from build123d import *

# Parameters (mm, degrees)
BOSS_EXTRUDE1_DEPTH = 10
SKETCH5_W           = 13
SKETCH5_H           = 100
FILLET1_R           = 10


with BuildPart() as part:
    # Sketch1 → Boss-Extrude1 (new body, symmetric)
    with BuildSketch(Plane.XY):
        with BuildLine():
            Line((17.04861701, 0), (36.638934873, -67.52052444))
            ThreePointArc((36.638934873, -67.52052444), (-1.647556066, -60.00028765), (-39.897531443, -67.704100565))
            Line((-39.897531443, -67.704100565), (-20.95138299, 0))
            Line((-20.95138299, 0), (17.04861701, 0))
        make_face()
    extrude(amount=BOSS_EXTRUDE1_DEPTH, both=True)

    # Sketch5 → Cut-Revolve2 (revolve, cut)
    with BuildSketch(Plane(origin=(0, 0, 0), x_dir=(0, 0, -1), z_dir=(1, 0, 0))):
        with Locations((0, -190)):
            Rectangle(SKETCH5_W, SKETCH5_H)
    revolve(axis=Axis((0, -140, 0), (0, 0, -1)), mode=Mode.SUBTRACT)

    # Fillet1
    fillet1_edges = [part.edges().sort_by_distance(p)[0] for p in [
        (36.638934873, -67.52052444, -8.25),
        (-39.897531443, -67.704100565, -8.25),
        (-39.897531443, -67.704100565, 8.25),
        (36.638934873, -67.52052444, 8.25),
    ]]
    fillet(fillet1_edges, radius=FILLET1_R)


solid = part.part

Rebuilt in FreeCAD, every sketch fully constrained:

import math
import FreeCAD as App
import Part
import Sketcher

V = App.Vector


def edges_at(feature, points):
    """Names of the edges that pass closest to the given points."""
    edges = feature.Shape.Edges
    near = lambda p: min(range(len(edges)), key=lambda i: edges[i].distToShape(Part.Vertex(*p))[0])
    return sorted({f"Edge{near(p) + 1}" for p in points})

doc = App.newDocument("Part")
body = doc.addObject("PartDesign::Body", "Body")

sketch1 = doc.addObject("Sketcher::SketchObject", "Sketch")
body.addObject(sketch1)
sketch1.AttachmentSupport = (doc.XY_Plane, [""])
sketch1.MapMode = "FlatFace"
sketch1.addGeometry(Part.LineSegment(V(37, -68, 0), V(17, 0, 0)), False)
sketch1.addGeometry(Part.LineSegment(V(17, 0, 0), V(-21, 0, 0)), False)
sketch1.addGeometry(Part.LineSegment(V(-21, 0, 0), V(-40, -68, 0)), False)
sketch1.addGeometry(Part.ArcOfCircle(Part.Circle(V(-1, -160, 0), V(0, 0, 1), 100), math.radians(68), math.radians(113)), False)
sketch1.addConstraint(Sketcher.Constraint("Coincident", 0, 2, 1, 1))
sketch1.addConstraint(Sketcher.Constraint("Coincident", 1, 2, 2, 1))
sketch1.addConstraint(Sketcher.Constraint("Coincident", 2, 2, 3, 2))
sketch1.addConstraint(Sketcher.Constraint("Coincident", 3, 1, 0, 1))
sketch1.addConstraint(Sketcher.Constraint("Horizontal", 1))
sketch1.addConstraint(Sketcher.Constraint("PointOnObject", 0, 2, -1))
sketch1.addConstraint(Sketcher.Constraint("Equal", 0, 2))
sketch1.addConstraint(Sketcher.Constraint("Radius", 3, 100.0))
sketch1.addConstraint(Sketcher.Constraint("DistanceX", 1, 2, 1, 1, 38.0))
sketch1.addConstraint(Sketcher.Constraint("DistanceY", 3, 3, -1, 1, 160.0))
sketch1.addConstraint(Sketcher.Constraint("DistanceY", 2, 2, -1, 1, 67.704101))
sketch1.addConstraint(Sketcher.Constraint("DistanceX", 2, 2, -1, 1, 39.897531))
sketch1.addConstraint(Sketcher.Constraint("DistanceX", 3, 3, 0, 2, 18.456319))
pad1 = doc.addObject("PartDesign::Pad", "Pad")
body.addObject(pad1)
pad1.Profile = sketch1
pad1.Length = 20
pad1.Midplane = True

sketch2 = doc.addObject("Sketcher::SketchObject", "Sketch001")
body.addObject(sketch2)
sketch2.AttachmentSupport = (doc.YZ_Plane, [""])
sketch2.MapMode = "FlatFace"
sketch2.addGeometry(Part.LineSegment(V(-140, 6, 0), V(-240, 6, 0)), False)
sketch2.addGeometry(Part.LineSegment(V(-240, 6, 0), V(-240, -6, 0)), False)
sketch2.addGeometry(Part.LineSegment(V(-240, -6, 0), V(-140, -6, 0)), False)
sketch2.addGeometry(Part.LineSegment(V(-140, -6, 0), V(-140, 6, 0)), False)
sketch2.addGeometry(Part.LineSegment(V(-140, 6, 0), V(-140, -6, 0)), True)
sketch2.addConstraint(Sketcher.Constraint("Coincident", 0, 2, 1, 1))
sketch2.addConstraint(Sketcher.Constraint("Coincident", 1, 2, 2, 1))
sketch2.addConstraint(Sketcher.Constraint("Coincident", 2, 2, 3, 1))
sketch2.addConstraint(Sketcher.Constraint("Coincident", 3, 2, 0, 1))
sketch2.addConstraint(Sketcher.Constraint("Horizontal", 0))
sketch2.addConstraint(Sketcher.Constraint("Vertical", 1))
sketch2.addConstraint(Sketcher.Constraint("Horizontal", 2))
sketch2.addConstraint(Sketcher.Constraint("Vertical", 3))
sketch2.addConstraint(Sketcher.Constraint("Vertical", 4))
sketch2.addConstraint(Sketcher.Constraint("Coincident", 4, 1, 3, 2))
sketch2.addConstraint(Sketcher.Constraint("Horizontal", 1, 2, 4, 2))
sketch2.addConstraint(Sketcher.Constraint("DistanceX", 0, 2, 0, 1, 100.0))
sketch2.addConstraint(Sketcher.Constraint("DistanceY", 1, 2, 1, 1, 13.0))
sketch2.addConstraint(Sketcher.Constraint("DistanceX", 0, 2, -1, 1, 240.0))
sketch2.addConstraint(Sketcher.Constraint("DistanceY", -1, 1, 0, 2, 6.5))
groove = doc.addObject("PartDesign::Groove", "Groove")
body.addObject(groove)
groove.Profile = sketch2
groove.ReferenceAxis = (sketch2, ["Axis0"])
groove.Angle = 360
doc.recompute()

fillet = doc.addObject("PartDesign::Fillet", "Fillet")
body.addObject(fillet)
fillet.Base = (groove, edges_at(groove, [
    (36.639, -67.521, -8.25),
    (-39.898, -67.704, -8.25),
    (-39.898, -67.704, 8.25),
    (36.639, -67.521, 8.25),
]))
fillet.Radius = 10

doc.recompute()
